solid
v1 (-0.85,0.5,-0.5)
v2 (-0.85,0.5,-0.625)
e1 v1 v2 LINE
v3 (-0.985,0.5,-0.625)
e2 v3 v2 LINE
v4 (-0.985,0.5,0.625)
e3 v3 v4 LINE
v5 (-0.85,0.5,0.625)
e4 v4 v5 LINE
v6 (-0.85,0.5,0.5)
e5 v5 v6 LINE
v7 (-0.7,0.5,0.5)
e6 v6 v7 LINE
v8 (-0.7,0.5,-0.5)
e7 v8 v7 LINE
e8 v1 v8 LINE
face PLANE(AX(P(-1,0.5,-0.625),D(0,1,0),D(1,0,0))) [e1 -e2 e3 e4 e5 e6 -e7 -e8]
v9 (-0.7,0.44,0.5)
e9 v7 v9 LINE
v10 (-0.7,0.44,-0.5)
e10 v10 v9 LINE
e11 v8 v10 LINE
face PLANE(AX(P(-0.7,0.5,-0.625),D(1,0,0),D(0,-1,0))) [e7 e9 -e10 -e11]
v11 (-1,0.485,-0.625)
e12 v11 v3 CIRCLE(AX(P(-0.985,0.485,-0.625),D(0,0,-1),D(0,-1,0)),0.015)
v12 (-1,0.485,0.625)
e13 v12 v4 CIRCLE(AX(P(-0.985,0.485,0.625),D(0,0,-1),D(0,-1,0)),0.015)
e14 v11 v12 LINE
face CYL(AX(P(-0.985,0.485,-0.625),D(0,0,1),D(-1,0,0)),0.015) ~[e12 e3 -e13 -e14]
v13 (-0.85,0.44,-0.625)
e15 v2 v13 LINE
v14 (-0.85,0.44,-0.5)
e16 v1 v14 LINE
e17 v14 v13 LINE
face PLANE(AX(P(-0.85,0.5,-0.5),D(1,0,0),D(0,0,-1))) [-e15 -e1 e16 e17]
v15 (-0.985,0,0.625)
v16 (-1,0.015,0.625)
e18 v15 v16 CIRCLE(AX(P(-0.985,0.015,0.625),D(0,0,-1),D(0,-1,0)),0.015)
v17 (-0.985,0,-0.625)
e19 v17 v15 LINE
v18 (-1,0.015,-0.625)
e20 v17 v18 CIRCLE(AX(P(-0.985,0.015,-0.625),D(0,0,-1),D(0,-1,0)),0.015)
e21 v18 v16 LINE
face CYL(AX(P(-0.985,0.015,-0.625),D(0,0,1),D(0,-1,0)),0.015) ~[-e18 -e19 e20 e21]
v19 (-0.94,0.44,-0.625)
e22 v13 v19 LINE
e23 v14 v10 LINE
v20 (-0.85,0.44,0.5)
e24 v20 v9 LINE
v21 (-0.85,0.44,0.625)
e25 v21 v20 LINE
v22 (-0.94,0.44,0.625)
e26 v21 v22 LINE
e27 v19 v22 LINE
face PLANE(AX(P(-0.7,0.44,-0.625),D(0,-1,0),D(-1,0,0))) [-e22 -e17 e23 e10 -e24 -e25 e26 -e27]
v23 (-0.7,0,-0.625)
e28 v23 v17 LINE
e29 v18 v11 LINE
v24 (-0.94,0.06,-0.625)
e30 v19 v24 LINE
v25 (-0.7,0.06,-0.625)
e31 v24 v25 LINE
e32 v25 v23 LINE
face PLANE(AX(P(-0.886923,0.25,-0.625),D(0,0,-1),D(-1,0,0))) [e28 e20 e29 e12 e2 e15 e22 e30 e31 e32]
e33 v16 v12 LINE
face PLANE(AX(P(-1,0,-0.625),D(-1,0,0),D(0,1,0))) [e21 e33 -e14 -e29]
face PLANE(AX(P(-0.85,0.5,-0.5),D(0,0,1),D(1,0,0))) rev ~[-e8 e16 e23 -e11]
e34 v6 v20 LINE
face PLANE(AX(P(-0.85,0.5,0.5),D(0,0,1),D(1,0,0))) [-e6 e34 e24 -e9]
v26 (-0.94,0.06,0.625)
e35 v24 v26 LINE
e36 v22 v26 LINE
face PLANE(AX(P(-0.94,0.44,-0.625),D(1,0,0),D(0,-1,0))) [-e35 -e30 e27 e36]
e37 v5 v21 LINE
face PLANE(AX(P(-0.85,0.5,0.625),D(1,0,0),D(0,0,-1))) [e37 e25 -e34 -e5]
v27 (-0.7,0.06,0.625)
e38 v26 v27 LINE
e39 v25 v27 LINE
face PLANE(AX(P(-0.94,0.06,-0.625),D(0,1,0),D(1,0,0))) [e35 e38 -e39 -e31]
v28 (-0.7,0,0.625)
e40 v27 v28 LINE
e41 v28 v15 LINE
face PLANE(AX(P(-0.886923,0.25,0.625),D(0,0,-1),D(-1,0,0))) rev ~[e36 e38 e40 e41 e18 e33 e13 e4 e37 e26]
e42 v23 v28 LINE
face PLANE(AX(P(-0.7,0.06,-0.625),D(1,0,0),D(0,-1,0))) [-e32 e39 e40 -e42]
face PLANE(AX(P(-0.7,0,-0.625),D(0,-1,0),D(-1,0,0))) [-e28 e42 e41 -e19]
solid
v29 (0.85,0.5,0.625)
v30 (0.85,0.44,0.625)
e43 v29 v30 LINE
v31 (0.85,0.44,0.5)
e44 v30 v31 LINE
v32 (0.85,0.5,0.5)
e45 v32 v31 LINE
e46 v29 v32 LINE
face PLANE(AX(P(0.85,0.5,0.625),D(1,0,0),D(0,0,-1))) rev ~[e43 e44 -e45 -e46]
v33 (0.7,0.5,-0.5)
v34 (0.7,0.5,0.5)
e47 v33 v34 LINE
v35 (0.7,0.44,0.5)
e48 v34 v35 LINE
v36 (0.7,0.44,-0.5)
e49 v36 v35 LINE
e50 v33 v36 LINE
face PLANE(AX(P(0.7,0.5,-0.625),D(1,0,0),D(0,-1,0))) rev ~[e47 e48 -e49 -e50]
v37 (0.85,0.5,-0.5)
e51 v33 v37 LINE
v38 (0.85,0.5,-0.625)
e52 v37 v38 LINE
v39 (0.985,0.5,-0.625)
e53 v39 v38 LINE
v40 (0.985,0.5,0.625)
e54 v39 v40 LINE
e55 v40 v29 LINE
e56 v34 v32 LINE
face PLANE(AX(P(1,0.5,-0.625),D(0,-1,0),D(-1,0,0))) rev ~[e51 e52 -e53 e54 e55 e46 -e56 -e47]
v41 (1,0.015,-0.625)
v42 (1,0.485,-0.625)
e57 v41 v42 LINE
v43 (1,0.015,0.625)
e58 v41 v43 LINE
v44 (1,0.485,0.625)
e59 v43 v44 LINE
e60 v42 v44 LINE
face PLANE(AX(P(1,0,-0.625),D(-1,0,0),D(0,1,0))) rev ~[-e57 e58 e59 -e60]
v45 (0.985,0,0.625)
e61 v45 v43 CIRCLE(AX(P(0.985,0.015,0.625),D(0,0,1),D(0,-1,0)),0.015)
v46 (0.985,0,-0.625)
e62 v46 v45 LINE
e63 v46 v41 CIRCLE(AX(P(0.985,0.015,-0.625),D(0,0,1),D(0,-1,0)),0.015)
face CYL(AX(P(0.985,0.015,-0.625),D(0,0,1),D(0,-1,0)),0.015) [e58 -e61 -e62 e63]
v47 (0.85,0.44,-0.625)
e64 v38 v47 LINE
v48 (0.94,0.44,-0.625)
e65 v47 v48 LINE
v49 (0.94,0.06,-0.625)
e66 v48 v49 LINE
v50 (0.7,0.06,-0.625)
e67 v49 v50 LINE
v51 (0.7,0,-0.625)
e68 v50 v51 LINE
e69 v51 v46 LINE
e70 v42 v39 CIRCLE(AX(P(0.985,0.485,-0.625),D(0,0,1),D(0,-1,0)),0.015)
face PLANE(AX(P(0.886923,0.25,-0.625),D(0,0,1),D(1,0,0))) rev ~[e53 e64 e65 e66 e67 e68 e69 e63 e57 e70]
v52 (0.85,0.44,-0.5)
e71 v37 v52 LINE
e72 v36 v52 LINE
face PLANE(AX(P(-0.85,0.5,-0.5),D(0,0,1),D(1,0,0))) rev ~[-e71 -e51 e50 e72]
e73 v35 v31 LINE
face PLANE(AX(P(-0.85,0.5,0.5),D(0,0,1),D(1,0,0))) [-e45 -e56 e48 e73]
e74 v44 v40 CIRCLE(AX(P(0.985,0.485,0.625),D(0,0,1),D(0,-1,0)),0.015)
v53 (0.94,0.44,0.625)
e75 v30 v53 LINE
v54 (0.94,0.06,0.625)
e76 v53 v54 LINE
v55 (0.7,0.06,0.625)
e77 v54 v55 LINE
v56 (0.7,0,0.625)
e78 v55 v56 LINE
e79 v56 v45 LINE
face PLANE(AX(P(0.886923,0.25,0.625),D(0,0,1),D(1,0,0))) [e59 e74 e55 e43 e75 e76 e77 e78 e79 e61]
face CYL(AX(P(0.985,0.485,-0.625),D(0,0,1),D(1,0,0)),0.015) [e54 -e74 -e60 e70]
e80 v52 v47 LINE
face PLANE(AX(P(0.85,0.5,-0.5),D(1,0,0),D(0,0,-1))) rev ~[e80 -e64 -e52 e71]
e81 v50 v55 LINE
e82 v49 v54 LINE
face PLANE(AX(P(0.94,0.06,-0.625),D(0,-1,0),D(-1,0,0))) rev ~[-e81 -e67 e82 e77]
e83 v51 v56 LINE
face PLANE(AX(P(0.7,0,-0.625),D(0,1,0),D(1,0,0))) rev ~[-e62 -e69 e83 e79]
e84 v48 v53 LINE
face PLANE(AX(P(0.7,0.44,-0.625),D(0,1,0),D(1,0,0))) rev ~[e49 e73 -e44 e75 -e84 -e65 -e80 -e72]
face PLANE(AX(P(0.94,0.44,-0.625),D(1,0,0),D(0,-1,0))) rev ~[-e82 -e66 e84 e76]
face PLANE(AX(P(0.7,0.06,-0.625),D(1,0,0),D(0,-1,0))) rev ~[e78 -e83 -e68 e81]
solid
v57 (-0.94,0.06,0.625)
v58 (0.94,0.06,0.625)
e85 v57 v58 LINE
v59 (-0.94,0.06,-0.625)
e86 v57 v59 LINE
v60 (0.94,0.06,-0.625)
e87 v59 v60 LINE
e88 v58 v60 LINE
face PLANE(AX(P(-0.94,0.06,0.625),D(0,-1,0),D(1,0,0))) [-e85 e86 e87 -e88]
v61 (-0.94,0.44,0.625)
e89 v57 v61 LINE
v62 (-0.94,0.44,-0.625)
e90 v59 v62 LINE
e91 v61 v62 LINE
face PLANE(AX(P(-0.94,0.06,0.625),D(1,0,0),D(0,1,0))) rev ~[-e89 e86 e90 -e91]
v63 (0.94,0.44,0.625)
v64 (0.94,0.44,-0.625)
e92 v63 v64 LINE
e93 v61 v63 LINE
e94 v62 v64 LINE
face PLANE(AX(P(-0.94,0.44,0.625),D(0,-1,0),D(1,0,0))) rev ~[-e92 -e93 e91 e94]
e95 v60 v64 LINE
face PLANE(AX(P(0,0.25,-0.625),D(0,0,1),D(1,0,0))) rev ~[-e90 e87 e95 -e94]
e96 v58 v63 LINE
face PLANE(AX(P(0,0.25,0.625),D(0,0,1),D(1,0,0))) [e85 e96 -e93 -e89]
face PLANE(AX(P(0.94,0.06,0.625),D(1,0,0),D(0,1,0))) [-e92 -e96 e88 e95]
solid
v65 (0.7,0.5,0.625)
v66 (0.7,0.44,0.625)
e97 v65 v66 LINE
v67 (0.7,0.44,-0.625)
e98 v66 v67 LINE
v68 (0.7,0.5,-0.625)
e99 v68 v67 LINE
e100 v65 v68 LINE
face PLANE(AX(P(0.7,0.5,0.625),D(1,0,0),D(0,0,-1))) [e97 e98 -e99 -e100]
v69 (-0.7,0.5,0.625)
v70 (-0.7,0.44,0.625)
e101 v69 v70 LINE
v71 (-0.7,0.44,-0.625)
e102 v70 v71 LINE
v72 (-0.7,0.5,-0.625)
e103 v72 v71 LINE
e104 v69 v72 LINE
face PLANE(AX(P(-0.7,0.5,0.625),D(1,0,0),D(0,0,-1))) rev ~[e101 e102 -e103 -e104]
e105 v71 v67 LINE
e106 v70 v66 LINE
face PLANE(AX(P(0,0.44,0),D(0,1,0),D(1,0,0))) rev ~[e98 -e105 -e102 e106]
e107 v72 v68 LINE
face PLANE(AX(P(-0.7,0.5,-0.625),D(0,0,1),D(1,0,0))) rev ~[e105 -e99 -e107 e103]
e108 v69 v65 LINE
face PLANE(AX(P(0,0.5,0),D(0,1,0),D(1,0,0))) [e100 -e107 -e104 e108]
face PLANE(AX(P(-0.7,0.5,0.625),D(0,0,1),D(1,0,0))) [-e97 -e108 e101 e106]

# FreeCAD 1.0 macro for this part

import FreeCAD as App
import Part
import Sketcher
from FreeCAD import Vector
Q = App.Units.Quantity


def edges_at(feature, points):
    """Names of the edges that pass closest to the given points."""
    edges = feature.Shape.Edges
    near = lambda p: min(range(len(edges)), key=lambda i: edges[i].distToShape(Part.Vertex(*p))[0])
    return sorted({f"Edge{near(p) + 1}" for p in points})


def add_polygon(sketch, points):
    """Adds a closed chain of lines whose ends are joined by coincident constraints."""
    first, n = sketch.GeometryCount, len(points)
    for a, b in zip(points, points[1:] + points[:1]):
        sketch.addGeometry(Part.LineSegment(App.Vector(*a, 0), App.Vector(*b, 0)), False)
    for i in range(n):
        sketch.addConstraint(Sketcher.Constraint("Coincident", first + i, 2, first + (i + 1) % n, 1))

doc = App.newDocument("Part")
body = doc.addObject("PartDesign::Body", "Body")

# Sketch on XY plane
sketch1 = doc.addObject("Sketcher::SketchObject", "Sketch")
body.addObject(sketch1)
sketch1.AttachmentSupport = (doc.XY_Plane, [""])
sketch1.MapMode = "FlatFace"
add_polygon(sketch1, [(-1, 0), (-0.7, 0), (-0.7, 0.06), (-0.94, 0.06), (-0.94, 0.44), (-0.7, 0.44), (-0.7, 0.5), (-1, 0.5)])  # lines 0-7
sketch1.addConstraint([
    Sketcher.Constraint("Horizontal", 0),
    Sketcher.Constraint("Vertical", 1),
    Sketcher.Constraint("Horizontal", 2),
    Sketcher.Constraint("Vertical", 3),
    Sketcher.Constraint("Horizontal", 4),
    Sketcher.Constraint("Vertical", 5),
    Sketcher.Constraint("Horizontal", 6),
    Sketcher.Constraint("Vertical", 7),
    Sketcher.Constraint("PointOnObject", 0, 2, -1),
    Sketcher.Constraint("Vertical", 1, 2, 4, 2),
    Sketcher.Constraint("Equal", 1, 5),
    Sketcher.Constraint("DistanceX", 0, 1, 0, 2, Q("0.3 mm")),
    Sketcher.Constraint("DistanceY", 7, 2, 7, 1, Q("0.5 mm")),
    Sketcher.Constraint("DistanceX", 6, 2, -1, 1, Q("1 mm")),
    Sketcher.Constraint("DistanceX", 2, 2, 2, 1, Q("0.24 mm")),
    Sketcher.Constraint("DistanceY", 1, 1, 1, 2, Q("0.06 mm")),
])
pad1 = doc.addObject("PartDesign::Pad", "Pad")
body.addObject(pad1)
pad1.Profile = sketch1
pad1.Type = "TwoLengths"
pad1.Length = 0.625
pad1.Length2 = 0.625
body2 = doc.addObject("PartDesign::Body", "Body001")

# Sketch on XY plane
sketch2 = doc.addObject("Sketcher::SketchObject", "Sketch001")
body2.addObject(sketch2)
sketch2.AttachmentSupport = (doc.getObject("XY_Plane001"), [""])
sketch2.MapMode = "FlatFace"
add_polygon(sketch2, [(0.7, 0.06), (0.7, 0), (1, 0), (1, 0.5), (0.7, 0.5), (0.7, 0.44), (0.94, 0.44), (0.94, 0.06)])  # lines 0-7
sketch2.addConstraint([
    Sketcher.Constraint("Vertical", 0),
    Sketcher.Constraint("Horizontal", 1),
    Sketcher.Constraint("Vertical", 2),
    Sketcher.Constraint("Horizontal", 3),
    Sketcher.Constraint("Vertical", 4),
    Sketcher.Constraint("Horizontal", 5),
    Sketcher.Constraint("Vertical", 6),
    Sketcher.Constraint("Horizontal", 7),
    Sketcher.Constraint("PointOnObject", 0, 2, -1),
    Sketcher.Constraint("Vertical", 0, 2, 3, 2),
    Sketcher.Constraint("Equal", 0, 4),
    Sketcher.Constraint("DistanceX", 1, 1, 1, 2, Q("0.3 mm")),
    Sketcher.Constraint("DistanceY", 2, 1, 2, 2, Q("0.5 mm")),
    Sketcher.Constraint("DistanceX", -1, 1, 1, 2, Q("1 mm")),
    Sketcher.Constraint("DistanceX", 5, 1, 5, 2, Q("0.24 mm")),
    Sketcher.Constraint("DistanceY", 0, 2, 0, 1, Q("0.06 mm")),
])
pad2 = doc.addObject("PartDesign::Pad", "Pad001")
body2.addObject(pad2)
pad2.Profile = sketch2
pad2.Type = "TwoLengths"
pad2.Length = 0.625
pad2.Length2 = 0.625
body3 = doc.addObject("PartDesign::Body", "Body002")
body3.AllowCompound = True

# Sketch on XZ plane
sketch3 = doc.addObject("Sketcher::SketchObject", "Sketch002")
body3.addObject(sketch3)
sketch3.AttachmentSupport = (doc.getObject("XZ_Plane002"), [""])
sketch3.MapMode = "FlatFace"
sketch3.AttachmentOffset = App.Placement(Vector(0, 0, -0.5), App.Rotation())
add_polygon(sketch3, [(-0.85, -0.62), (-0.85, -0.5), (0.85, -0.5), (0.85, -0.62)])  # lines 0-3
add_polygon(sketch3, [(-0.85, 0.5), (-0.85, 0.62), (0.85, 0.62), (0.85, 0.5)])  # lines 4-7
sketch3.addConstraint([
    Sketcher.Constraint("Vertical", 0),
    Sketcher.Constraint("Horizontal", 1),
    Sketcher.Constraint("Vertical", 2),
    Sketcher.Constraint("Horizontal", 3),
    Sketcher.Constraint("Vertical", 4),
    Sketcher.Constraint("Horizontal", 5),
    Sketcher.Constraint("Vertical", 6),
    Sketcher.Constraint("Horizontal", 7),
    Sketcher.Constraint("Symmetric", 2, 2, 4, 2, -1, 1),
    Sketcher.Constraint("Symmetric", 0, 2, 6, 2, -1, 1),
    Sketcher.Constraint("Vertical", 3, 2, 4, 2),
    Sketcher.Constraint("DistanceX", 1, 1, 1, 2, Q("1.7 mm")),
    Sketcher.Constraint("DistanceY", 1, 2, 6, 2, Q("1 mm")),
    Sketcher.Constraint("DistanceY", 0, 1, 0, 2, Q("0.125 mm")),
])
pad3 = doc.addObject("PartDesign::Pad", "Pad002")
body3.addObject(pad3)
pad3.Profile = sketch3
pad3.Length = 0.06
doc.recompute()

body4 = doc.addObject("PartDesign::Body", "Body003")
body4.BaseFeature = body3
boolean = doc.addObject("PartDesign::Boolean", "Boolean")
body.addObject(boolean)
boolean.Type = "Cut"
boolean.addObjects([body4])
doc.recompute()

fillet = doc.addObject("PartDesign::Fillet", "Fillet")
body.addObject(fillet)
fillet.Base = (boolean, edges_at(boolean, [(-1, 0, 0), (-1, 0.5, 0)]))
fillet.Radius = 0.015
doc.recompute()

boolean2 = doc.addObject("PartDesign::Boolean", "Boolean001")
body2.addObject(boolean2)
boolean2.Type = "Cut"
boolean2.addObjects([body3])
doc.recompute()

fillet2 = doc.addObject("PartDesign::Fillet", "Fillet001")
body2.addObject(fillet2)
fillet2.Base = (boolean2, edges_at(boolean2, [(1, 0, 0), (1, 0.5, 0)]))
fillet2.Radius = 0.015
body5 = doc.addObject("PartDesign::Body", "Body004")

# Sketch on XY plane
sketch4 = doc.addObject("Sketcher::SketchObject", "Sketch003")
body5.addObject(sketch4)
sketch4.AttachmentSupport = (doc.getObject("XY_Plane004"), [""])
sketch4.MapMode = "FlatFace"
sketch4.AttachmentOffset = App.Placement(Vector(0, 0, 0.625), App.Rotation())
add_polygon(sketch4, [(-0.94, 0.44), (-0.94, 0.06), (0.94, 0.06), (0.94, 0.44)])  # lines 0-3
sketch4.addConstraint([
    Sketcher.Constraint("Vertical", 0),
    Sketcher.Constraint("Horizontal", 1),
    Sketcher.Constraint("Vertical", 2),
    Sketcher.Constraint("Horizontal", 3),
    Sketcher.Constraint("DistanceX", 1, 1, 1, 2, Q("1.88 mm")),
    Sketcher.Constraint("DistanceY", 0, 2, 0, 1, Q("0.38 mm")),
    Sketcher.Constraint("DistanceX", 0, 2, -1, 1, Q("0.94 mm")),
    Sketcher.Constraint("DistanceY", -1, 1, 0, 2, Q("0.06 mm")),
])
pad4 = doc.addObject("PartDesign::Pad", "Pad003")
body5.addObject(pad4)
pad4.Profile = sketch4
pad4.Length = 1.25
pad4.Reversed = True
body6 = doc.addObject("PartDesign::Body", "Body005")

# Sketch on XZ plane
sketch5 = doc.addObject("Sketcher::SketchObject", "Sketch004")
body6.addObject(sketch5)
sketch5.AttachmentSupport = (doc.getObject("XZ_Plane005"), [""])
sketch5.MapMode = "FlatFace"
sketch5.AttachmentOffset = App.Placement(Vector(0, 0, -0.5), App.Rotation())
add_polygon(sketch5, [(-0.7, -0.6), (-0.7, 0.6), (0.7, 0.6), (0.7, -0.6)])  # lines 0-3
sketch5.addConstraint([
    Sketcher.Constraint("Vertical", 0),
    Sketcher.Constraint("Horizontal", 1),
    Sketcher.Constraint("Vertical", 2),
    Sketcher.Constraint("Horizontal", 3),
    Sketcher.Constraint("Symmetric", 0, 2, 2, 2, -1, 1),
    Sketcher.Constraint("DistanceX", 1, 1, 1, 2, Q("1.4 mm")),
    Sketcher.Constraint("DistanceY", 0, 1, 0, 2, Q("1.25 mm")),
])
pad5 = doc.addObject("PartDesign::Pad", "Pad004")
body6.addObject(pad5)
pad5.Profile = sketch5
pad5.Length = 0.06

doc.recompute()
